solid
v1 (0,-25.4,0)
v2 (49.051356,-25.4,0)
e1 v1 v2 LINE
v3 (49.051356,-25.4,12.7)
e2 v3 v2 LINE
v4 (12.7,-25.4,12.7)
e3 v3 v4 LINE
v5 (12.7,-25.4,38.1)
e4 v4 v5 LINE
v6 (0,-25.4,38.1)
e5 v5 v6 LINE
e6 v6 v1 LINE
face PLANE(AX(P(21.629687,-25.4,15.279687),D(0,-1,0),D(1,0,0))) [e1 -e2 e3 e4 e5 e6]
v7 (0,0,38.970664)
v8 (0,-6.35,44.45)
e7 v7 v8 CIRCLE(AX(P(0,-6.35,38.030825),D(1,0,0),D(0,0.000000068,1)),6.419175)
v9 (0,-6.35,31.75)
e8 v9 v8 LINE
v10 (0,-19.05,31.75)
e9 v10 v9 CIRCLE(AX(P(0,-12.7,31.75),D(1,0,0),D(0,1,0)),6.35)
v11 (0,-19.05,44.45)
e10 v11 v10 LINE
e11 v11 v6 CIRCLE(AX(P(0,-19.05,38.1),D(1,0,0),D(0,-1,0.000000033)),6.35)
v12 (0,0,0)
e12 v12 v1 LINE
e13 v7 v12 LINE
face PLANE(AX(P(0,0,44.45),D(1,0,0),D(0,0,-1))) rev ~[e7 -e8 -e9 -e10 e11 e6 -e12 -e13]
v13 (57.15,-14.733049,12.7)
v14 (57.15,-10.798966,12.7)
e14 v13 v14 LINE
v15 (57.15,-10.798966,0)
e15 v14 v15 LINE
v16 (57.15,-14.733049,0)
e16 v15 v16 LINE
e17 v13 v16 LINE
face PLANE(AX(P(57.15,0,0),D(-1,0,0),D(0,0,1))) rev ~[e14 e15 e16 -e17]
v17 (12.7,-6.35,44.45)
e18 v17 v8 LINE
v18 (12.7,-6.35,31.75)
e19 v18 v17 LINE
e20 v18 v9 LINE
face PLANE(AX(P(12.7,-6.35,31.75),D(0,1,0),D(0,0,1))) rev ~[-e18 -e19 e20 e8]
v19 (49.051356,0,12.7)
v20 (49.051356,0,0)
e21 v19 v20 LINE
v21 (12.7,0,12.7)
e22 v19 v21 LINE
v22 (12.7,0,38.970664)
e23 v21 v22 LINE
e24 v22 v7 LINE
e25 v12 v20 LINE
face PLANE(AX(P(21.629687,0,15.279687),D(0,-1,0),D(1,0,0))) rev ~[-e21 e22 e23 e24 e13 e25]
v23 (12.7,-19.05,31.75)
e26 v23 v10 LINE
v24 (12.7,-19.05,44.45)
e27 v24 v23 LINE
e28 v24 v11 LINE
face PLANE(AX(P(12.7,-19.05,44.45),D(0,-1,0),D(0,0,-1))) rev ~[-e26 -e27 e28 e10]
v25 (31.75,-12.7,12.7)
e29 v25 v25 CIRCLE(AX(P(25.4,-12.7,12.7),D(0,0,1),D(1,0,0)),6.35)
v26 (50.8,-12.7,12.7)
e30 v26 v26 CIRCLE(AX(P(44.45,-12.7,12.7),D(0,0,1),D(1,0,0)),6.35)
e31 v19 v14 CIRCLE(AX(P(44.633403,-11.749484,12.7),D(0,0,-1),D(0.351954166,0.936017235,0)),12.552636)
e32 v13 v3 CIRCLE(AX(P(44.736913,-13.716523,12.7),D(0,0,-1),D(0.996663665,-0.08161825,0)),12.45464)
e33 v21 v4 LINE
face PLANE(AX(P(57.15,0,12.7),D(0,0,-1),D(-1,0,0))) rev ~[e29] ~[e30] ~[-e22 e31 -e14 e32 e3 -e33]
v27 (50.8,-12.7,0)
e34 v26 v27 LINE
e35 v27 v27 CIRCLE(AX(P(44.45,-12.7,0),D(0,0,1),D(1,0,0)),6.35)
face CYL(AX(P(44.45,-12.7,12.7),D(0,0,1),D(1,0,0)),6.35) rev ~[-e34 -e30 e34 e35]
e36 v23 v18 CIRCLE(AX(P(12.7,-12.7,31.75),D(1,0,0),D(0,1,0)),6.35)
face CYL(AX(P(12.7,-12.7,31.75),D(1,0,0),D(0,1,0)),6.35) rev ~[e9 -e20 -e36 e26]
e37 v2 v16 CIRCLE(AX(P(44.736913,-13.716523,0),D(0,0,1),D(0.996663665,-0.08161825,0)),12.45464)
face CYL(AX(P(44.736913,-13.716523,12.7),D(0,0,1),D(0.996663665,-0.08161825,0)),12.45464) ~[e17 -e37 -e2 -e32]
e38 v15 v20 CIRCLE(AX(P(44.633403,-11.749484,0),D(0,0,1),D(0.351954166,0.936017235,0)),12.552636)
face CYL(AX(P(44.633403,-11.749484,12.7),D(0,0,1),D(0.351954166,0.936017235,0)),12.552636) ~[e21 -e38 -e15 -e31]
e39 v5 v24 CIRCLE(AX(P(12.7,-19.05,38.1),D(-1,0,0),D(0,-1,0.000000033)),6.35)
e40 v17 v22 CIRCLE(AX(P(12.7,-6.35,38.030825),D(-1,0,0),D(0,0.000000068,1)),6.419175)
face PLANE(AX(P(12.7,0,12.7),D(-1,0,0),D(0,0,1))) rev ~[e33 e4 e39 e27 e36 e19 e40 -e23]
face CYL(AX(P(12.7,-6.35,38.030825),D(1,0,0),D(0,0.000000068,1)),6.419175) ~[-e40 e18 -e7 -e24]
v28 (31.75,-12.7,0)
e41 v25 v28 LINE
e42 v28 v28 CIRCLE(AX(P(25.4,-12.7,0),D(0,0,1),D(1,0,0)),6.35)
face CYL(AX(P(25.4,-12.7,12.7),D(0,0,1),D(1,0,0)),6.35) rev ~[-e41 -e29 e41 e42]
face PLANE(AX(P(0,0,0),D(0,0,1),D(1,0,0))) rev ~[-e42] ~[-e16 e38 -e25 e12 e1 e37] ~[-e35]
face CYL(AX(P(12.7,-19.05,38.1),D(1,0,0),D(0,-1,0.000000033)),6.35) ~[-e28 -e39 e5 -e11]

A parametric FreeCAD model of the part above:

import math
import FreeCAD as App
import Part
import Sketcher
Q = App.Units.Quantity

doc = App.newDocument("Part")
body = doc.addObject("PartDesign::Body", "Body")

# Sketch on XZ plane
sketch1 = doc.addObject("Sketcher::SketchObject", "Sketch")
body.addObject(sketch1)
sketch1.AttachmentSupport = (doc.XZ_Plane, [""])
sketch1.MapMode = "FlatFace"
sketch1.addGeometry([
    Part.LineSegment(App.Vector(0, 44, 0), App.Vector(0, 0, 0)),  # 0
    Part.LineSegment(App.Vector(0, 0, 0), App.Vector(57, 0, 0)),  # 1
    Part.LineSegment(App.Vector(57, 0, 0), App.Vector(57, 13, 0)),  # 2
    Part.LineSegment(App.Vector(57, 13, 0), App.Vector(13, 13, 0)),  # 3
    Part.LineSegment(App.Vector(13, 13, 0), App.Vector(13, 44, 0)),  # 4
    Part.LineSegment(App.Vector(13, 44, 0), App.Vector(0, 44, 0)),  # 5
], False)
sketch1.addConstraint([
    Sketcher.Constraint("Coincident", 0, 2, 1, 1),
    Sketcher.Constraint("Coincident", 1, 2, 2, 1),
    Sketcher.Constraint("Coincident", 2, 2, 3, 1),
    Sketcher.Constraint("Coincident", 3, 2, 4, 1),
    Sketcher.Constraint("Coincident", 4, 2, 5, 1),
    Sketcher.Constraint("Coincident", 5, 2, 0, 1),
    Sketcher.Constraint("Vertical", 0),
    Sketcher.Constraint("Horizontal", 1),
    Sketcher.Constraint("Vertical", 2),
    Sketcher.Constraint("Horizontal", 3),
    Sketcher.Constraint("Vertical", 4),
    Sketcher.Constraint("Horizontal", 5),
    Sketcher.Constraint("Coincident", 0, 2, -1, 1),
    Sketcher.Constraint("Equal", 3, 0),
    Sketcher.Constraint("Equal", 5, 2),
    Sketcher.Constraint("DistanceX", 5, 2, 5, 1, Q("0.5 in")),
    Sketcher.Constraint("DistanceX", 1, 1, 1, 2, Q("2.25 in")),
])
pad1 = doc.addObject("PartDesign::Pad", "Pad")
body.addObject(pad1)
pad1.Profile = sketch1
pad1.Length = Q("1 in")

# Sketch on YZ plane
sketch2 = doc.addObject("Sketcher::SketchObject", "Sketch001")
body.addObject(sketch2)
sketch2.AttachmentSupport = (doc.YZ_Plane, [""])
sketch2.MapMode = "FlatFace"
sketch2.AttachmentOffset = App.Placement(App.Vector(0, 0, 0.5 * 25.4), App.Rotation())
sketch2.addGeometry([
    Part.ArcOfCircle(Part.Circle(App.Vector(-13, 32, 0), App.Vector(0, 0, 1), 6), math.radians(180), math.radians(360)),
    Part.LineSegment(App.Vector(-6, 32, 0), App.Vector(-6, 44, 0)),
    Part.LineSegment(App.Vector(-6, 44, 0), App.Vector(-19, 44, 0)),
    Part.LineSegment(App.Vector(-19, 44, 0), App.Vector(-19, 32, 0)),
], False)
sketch2.addConstraint([
    Sketcher.Constraint("Tangent", 0, 2, 1, 1),
    Sketcher.Constraint("Coincident", 1, 2, 2, 1),
    Sketcher.Constraint("Coincident", 2, 2, 3, 1),
    Sketcher.Constraint("Tangent", 3, 2, 0, 1),
    Sketcher.Constraint("Vertical", 1),
    Sketcher.Constraint("Horizontal", 2),
    Sketcher.Constraint("Vertical", 3),
    Sketcher.Constraint("Equal", 2, 1),
    Sketcher.Constraint("Radius", 0, Q("0.25 in")),
    Sketcher.Constraint("DistanceX", 0, 3, -1, 1, Q("0.5 in")),
    Sketcher.Constraint("DistanceY", -1, 1, 0, 3, Q("1.25 in")),
])
pocket1 = doc.addObject("PartDesign::Pocket", "Pocket")
body.addObject(pocket1)
pocket1.Profile = sketch2
pocket1.Length = Q("1 in")

# Sketch on YZ plane
sketch3 = doc.addObject("Sketcher::SketchObject", "Sketch002")
body.addObject(sketch3)
sketch3.AttachmentSupport = (doc.YZ_Plane, [""])
sketch3.MapMode = "FlatFace"
sketch3.AttachmentOffset = App.Placement(App.Vector(0, 0, 0.5 * 25.4), App.Rotation())
sketch3.addGeometry([
    Part.LineSegment(App.Vector(-25, 44, 0), App.Vector(-25, 38, 0)),  # 0
    Part.ArcOfCircle(Part.Circle(App.Vector(-19, 38, 0), App.Vector(0, 0, 1), 6), math.radians(90), math.radians(180)),  # 1
    Part.LineSegment(App.Vector(-19, 44, 0), App.Vector(-25, 44, 0)),  # 2
    Part.LineSegment(App.Vector(0, 44, 0), App.Vector(-6, 44, 0)),  # 3
    Part.ArcOfCircle(Part.Circle(App.Vector(-6, 38, 0), App.Vector(0, 0, 1), 6), math.radians(8), math.radians(90)),  # 4
    Part.LineSegment(App.Vector(0, 39, 0), App.Vector(0, 44, 0)),  # 5
], False)
sketch3.addConstraint([
    Sketcher.Constraint("Tangent", 0, 2, 1, 2),
    Sketcher.Constraint("Tangent", 1, 1, 2, 1),
    Sketcher.Constraint("Coincident", 2, 2, 0, 1),
    Sketcher.Constraint("Tangent", 3, 2, 4, 2),
    Sketcher.Constraint("Coincident", 4, 1, 5, 1),
    Sketcher.Constraint("Coincident", 5, 2, 3, 1),
    Sketcher.Constraint("Vertical", 0),
    Sketcher.Constraint("Horizontal", 2),
    Sketcher.Constraint("Horizontal", 3),
    Sketcher.Constraint("Vertical", 5),
    Sketcher.Constraint("PointOnObject", 4, 1, -2),
    Sketcher.Constraint("Horizontal", 2, 2, 3, 2),
    Sketcher.Constraint("Equal", 2, 3),
    Sketcher.Constraint("Radius", 1, Q("0.25 in")),
    Sketcher.Constraint("DistanceX", 0, 2, -1, 1, Q("1 in")),
    Sketcher.Constraint("DistanceY", -1, 1, 1, 3, Q("1.5 in")),
    Sketcher.Constraint("Radius", 4, Q("6.419175 mm")),
])
pocket2 = doc.addObject("PartDesign::Pocket", "Pocket001")
body.addObject(pocket2)
pocket2.Profile = sketch3
pocket2.Length = Q("1 in")

# Sketch on XY plane
sketch4 = doc.addObject("Sketcher::SketchObject", "Sketch003")
body.addObject(sketch4)
sketch4.AttachmentSupport = (doc.XY_Plane, [""])
sketch4.MapMode = "FlatFace"
sketch4.AttachmentOffset = App.Placement(App.Vector(0, 0, 0.5 * 25.4), App.Rotation())
sketch4.addGeometry([
    Part.Circle(App.Vector(44, -13, 0), App.Vector(0, 0, 1), 6),
    Part.Circle(App.Vector(25, -13, 0), App.Vector(0, 0, 1), 6),
], False)
sketch4.addConstraint([
    Sketcher.Constraint("Equal", 0, 1),
    Sketcher.Constraint("Horizontal", 0, 3, 1, 3),
    Sketcher.Constraint("Diameter", 0, Q("0.5 in")),
    Sketcher.Constraint("DistanceX", -1, 1, 1, 3, Q("1 in")),
    Sketcher.Constraint("DistanceY", 0, 3, -1, 1, Q("0.5 in")),
    Sketcher.Constraint("DistanceX", -1, 1, 0, 3, Q("1.75 in")),
])
pocket3 = doc.addObject("PartDesign::Pocket", "Pocket002")
body.addObject(pocket3)
pocket3.Profile = sketch4
pocket3.Length = Q("1 in")

# Sketch on XY plane
sketch5 = doc.addObject("Sketcher::SketchObject", "Sketch004")
body.addObject(sketch5)
sketch5.AttachmentSupport = (doc.XY_Plane, [""])
sketch5.MapMode = "FlatFace"
sketch5.AttachmentOffset = App.Placement(App.Vector(0, 0, 0.5 * 25.4), App.Rotation())
sketch5.addGeometry([
    Part.LineSegment(App.Vector(57.1, -25.4, 0), App.Vector(57.1, -14.7, 0)),  # 0
    Part.ArcOfCircle(Part.Circle(App.Vector(44.7, -13.7, 0), App.Vector(0, 0, 1), 12.5), math.radians(-70), math.radians(-5)),  # 1
    Part.LineSegment(App.Vector(49.1, -25.4, 0), App.Vector(57.1, -25.4, 0)),  # 2
    Part.ArcOfCircle(Part.Circle(App.Vector(44.7, -13.7, 0), App.Vector(0, 0, 1), 12.5), math.radians(-4.68), math.radians(4.68)),  # 3
    Part.LineSegment(App.Vector(57.1, -12.7, 0), App.Vector(57.1, -14.7, 0)),  # 4
    Part.ArcOfCircle(Part.Circle(App.Vector(44.6, -11.7, 0), App.Vector(0, 0, 1), 12.6), math.radians(-4.34), math.radians(4.34)),  # 5
    Part.LineSegment(App.Vector(57.1, -10.8, 0), App.Vector(57.1, -12.7, 0)),  # 6
    Part.LineSegment(App.Vector(57.1, 0, 0), App.Vector(49.1, 0, 0)),  # 7
    Part.ArcOfCircle(Part.Circle(App.Vector(44.6, -11.7, 0), App.Vector(0, 0, 1), 12.6), math.radians(4), math.radians(69)),  # 8
    Part.LineSegment(App.Vector(57.1, -10.8, 0), App.Vector(57.1, 0, 0)),  # 9
], False)
sketch5.addConstraint([
    Sketcher.Constraint("Coincident", 0, 2, 1, 2),
    Sketcher.Constraint("Coincident", 1, 1, 2, 1),
    Sketcher.Constraint("Coincident", 2, 2, 0, 1),
    Sketcher.Constraint("Coincident", 3, 1, 4, 2),
    Sketcher.Constraint("Coincident", 4, 1, 3, 2),
    Sketcher.Constraint("Coincident", 5, 1, 6, 2),
    Sketcher.Constraint("Coincident", 6, 1, 5, 2),
    Sketcher.Constraint("Coincident", 7, 2, 8, 2),
    Sketcher.Constraint("Coincident", 8, 1, 9, 1),
    Sketcher.Constraint("Coincident", 9, 2, 7, 1),
    Sketcher.Constraint("Vertical", 0),
    Sketcher.Constraint("Horizontal", 2),
    Sketcher.Constraint("Vertical", 4),
    Sketcher.Constraint("Vertical", 6),
    Sketcher.Constraint("Horizontal", 7),
    Sketcher.Constraint("Vertical", 9),
    Sketcher.Constraint("Coincident", 3, 1, 0, 2),
    Sketcher.Constraint("Coincident", 5, 1, 4, 1),
    Sketcher.Constraint("Coincident", 8, 1, 6, 1),
    Sketcher.Constraint("PointOnObject", 7, 2, -1),
    Sketcher.Constraint("Horizontal", 1, 3, 3, 3),
    Sketcher.Constraint("Horizontal", 5, 3, 8, 3),
    Sketcher.Constraint("Vertical", 1, 1, 7, 2),
    Sketcher.Constraint("DistanceY", 1, 1, -1, 1, Q("1 in")),
    Sketcher.Constraint("DistanceY", 4, 1, -1, 1, Q("0.5 in")),
    Sketcher.Constraint("DistanceX", -1, 1, 0, 2, Q("2.25 in")),
    Sketcher.Constraint("Radius", 1, Q("12.45464 mm")),
    Sketcher.Constraint("Radius", 3, Q("12.454561 mm")),
    Sketcher.Constraint("Radius", 5, Q("12.552809 mm")),
    Sketcher.Constraint("Radius", 8, Q("12.552636 mm")),
    Sketcher.Constraint("DistanceY", 0, 1, 0, 2, Q("10.666951 mm")),
])
pocket4 = doc.addObject("PartDesign::Pocket", "Pocket003")
body.addObject(pocket4)
pocket4.Profile = sketch5
pocket4.Length = Q("1 in")

doc.recompute()
